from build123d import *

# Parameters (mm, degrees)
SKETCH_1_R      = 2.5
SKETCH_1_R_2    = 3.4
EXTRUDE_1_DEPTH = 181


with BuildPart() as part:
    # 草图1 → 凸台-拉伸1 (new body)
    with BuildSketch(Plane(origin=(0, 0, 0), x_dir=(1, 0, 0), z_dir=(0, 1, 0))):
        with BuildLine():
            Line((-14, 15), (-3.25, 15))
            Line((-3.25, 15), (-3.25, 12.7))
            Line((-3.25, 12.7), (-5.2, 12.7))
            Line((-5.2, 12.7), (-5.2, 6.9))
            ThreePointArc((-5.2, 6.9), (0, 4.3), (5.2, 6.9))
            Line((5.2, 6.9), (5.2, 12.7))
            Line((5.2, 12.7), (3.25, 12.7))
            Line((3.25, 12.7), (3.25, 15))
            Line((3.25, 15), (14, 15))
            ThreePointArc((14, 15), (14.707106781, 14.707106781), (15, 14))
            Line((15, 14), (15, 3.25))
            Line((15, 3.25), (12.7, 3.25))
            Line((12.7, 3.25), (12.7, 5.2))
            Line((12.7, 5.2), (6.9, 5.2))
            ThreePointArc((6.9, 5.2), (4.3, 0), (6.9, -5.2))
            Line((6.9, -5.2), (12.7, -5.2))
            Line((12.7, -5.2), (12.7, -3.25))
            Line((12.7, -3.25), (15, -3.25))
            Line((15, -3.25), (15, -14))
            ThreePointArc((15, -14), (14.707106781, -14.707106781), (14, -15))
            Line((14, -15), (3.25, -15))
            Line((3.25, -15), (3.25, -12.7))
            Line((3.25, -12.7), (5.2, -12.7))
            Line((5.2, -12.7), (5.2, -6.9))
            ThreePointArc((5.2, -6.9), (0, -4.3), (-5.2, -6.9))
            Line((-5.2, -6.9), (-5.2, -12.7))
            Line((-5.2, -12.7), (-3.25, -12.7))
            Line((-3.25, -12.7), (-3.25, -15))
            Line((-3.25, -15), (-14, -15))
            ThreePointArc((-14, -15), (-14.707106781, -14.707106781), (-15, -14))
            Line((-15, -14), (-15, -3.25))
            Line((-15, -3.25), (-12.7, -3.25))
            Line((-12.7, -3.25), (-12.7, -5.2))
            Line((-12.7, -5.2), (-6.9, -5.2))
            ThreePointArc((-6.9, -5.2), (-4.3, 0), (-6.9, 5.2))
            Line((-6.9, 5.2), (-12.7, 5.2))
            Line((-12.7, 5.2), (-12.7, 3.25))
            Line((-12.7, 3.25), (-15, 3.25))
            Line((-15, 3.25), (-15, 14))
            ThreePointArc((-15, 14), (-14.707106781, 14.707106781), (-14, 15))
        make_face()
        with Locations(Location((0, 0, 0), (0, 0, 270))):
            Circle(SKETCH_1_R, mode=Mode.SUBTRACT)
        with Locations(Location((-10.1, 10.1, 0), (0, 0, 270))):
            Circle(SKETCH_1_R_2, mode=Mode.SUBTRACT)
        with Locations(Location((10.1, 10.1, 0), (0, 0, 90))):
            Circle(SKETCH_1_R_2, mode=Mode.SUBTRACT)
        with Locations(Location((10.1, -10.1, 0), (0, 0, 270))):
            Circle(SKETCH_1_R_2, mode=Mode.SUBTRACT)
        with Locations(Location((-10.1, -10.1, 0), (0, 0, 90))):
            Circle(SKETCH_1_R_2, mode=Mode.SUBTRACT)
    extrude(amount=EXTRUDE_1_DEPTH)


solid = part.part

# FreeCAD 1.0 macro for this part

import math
import FreeCAD as App
import Part
import Sketcher

V = App.Vector

doc = App.newDocument("Part")
body = doc.addObject("PartDesign::Body", "Body")

# Sketch on XZ plane
sketch1 = body.newObject("Sketcher::SketchObject", "Sketch")
sketch1.AttachmentSupport = (doc.getObject("XZ_Plane"), [""])
sketch1.MapMode = "FlatFace"
sketch1.addGeometry([
    Part.LineSegment(V(-3.2, -15, 0), V(-14, -15, 0)),  # 0
    Part.ArcOfCircle(Part.Circle(V(-14, -14, 0), V(0, 0, 1), 1), math.radians(-180), math.radians(-90)),  # 1
    Part.LineSegment(V(-15, -14, 0), V(-15, -3.2, 0)),  # 2
    Part.LineSegment(V(-15, -3.2, 0), V(-12.7, -3.2, 0)),  # 3
    Part.LineSegment(V(-12.7, -3.2, 0), V(-12.7, -5.2, 0)),  # 4
    Part.LineSegment(V(-12.7, -5.2, 0), V(-6.9, -5.2, 0)),  # 5
    Part.ArcOfCircle(Part.Circle(V(-10.8, 0, 0), V(0, 0, 1), 6.5), math.radians(-53), math.radians(53)),  # 6
    Part.LineSegment(V(-6.9, 5.2, 0), V(-12.7, 5.2, 0)),  # 7
    Part.LineSegment(V(-12.7, 5.2, 0), V(-12.7, 3.2, 0)),  # 8
    Part.LineSegment(V(-12.7, 3.2, 0), V(-15, 3.2, 0)),  # 9
    Part.LineSegment(V(-15, 3.2, 0), V(-15, 14, 0)),  # 10
    Part.ArcOfCircle(Part.Circle(V(-14, 14, 0), V(0, 0, 1), 1), math.radians(90), math.radians(180)),  # 11
    Part.LineSegment(V(-14, 15, 0), V(-3.2, 15, 0)),  # 12
    Part.LineSegment(V(-3.2, 15, 0), V(-3.2, 12.7, 0)),  # 13
    Part.LineSegment(V(-3.2, 12.7, 0), V(-5.2, 12.7, 0)),  # 14
    Part.LineSegment(V(-5.2, 12.7, 0), V(-5.2, 6.9, 0)),  # 15
    Part.ArcOfCircle(Part.Circle(V(0, 10.8, 0), V(0, 0, 1), 6.5), math.radians(-143), math.radians(-37)),  # 16
    Part.LineSegment(V(5.2, 6.9, 0), V(5.2, 12.7, 0)),  # 17
    Part.LineSegment(V(5.2, 12.7, 0), V(3.2, 12.7, 0)),  # 18
    Part.LineSegment(V(3.2, 12.7, 0), V(3.2, 15, 0)),  # 19
    Part.LineSegment(V(3.2, 15, 0), V(14, 15, 0)),  # 20
    Part.ArcOfCircle(Part.Circle(V(14, 14, 0), V(0, 0, 1), 1), math.radians(0), math.radians(90)),  # 21
    Part.LineSegment(V(15, 14, 0), V(15, 3.2, 0)),  # 22
    Part.LineSegment(V(15, 3.2, 0), V(12.7, 3.2, 0)),  # 23
    Part.LineSegment(V(12.7, 3.2, 0), V(12.7, 5.2, 0)),  # 24
    Part.LineSegment(V(12.7, 5.2, 0), V(6.9, 5.2, 0)),  # 25
    Part.ArcOfCircle(Part.Circle(V(10.8, 0, 0), V(0, 0, 1), 6.5), math.radians(127), math.radians(233)),  # 26
    Part.LineSegment(V(6.9, -5.2, 0), V(12.7, -5.2, 0)),  # 27
    Part.LineSegment(V(12.7, -5.2, 0), V(12.7, -3.2, 0)),  # 28
    Part.LineSegment(V(12.7, -3.2, 0), V(15, -3.2, 0)),  # 29
    Part.LineSegment(V(15, -3.2, 0), V(15, -14, 0)),  # 30
    Part.ArcOfCircle(Part.Circle(V(14, -14, 0), V(0, 0, 1), 1), math.radians(-90), math.radians(0)),  # 31
    Part.LineSegment(V(14, -15, 0), V(3.2, -15, 0)),  # 32
    Part.LineSegment(V(3.2, -15, 0), V(3.2, -12.7, 0)),  # 33
    Part.LineSegment(V(3.2, -12.7, 0), V(5.2, -12.7, 0)),  # 34
    Part.LineSegment(V(5.2, -12.7, 0), V(5.2, -6.9, 0)),  # 35
    Part.ArcOfCircle(Part.Circle(V(0, -10.8, 0), V(0, 0, 1), 6.5), math.radians(37), math.radians(143)),  # 36
    Part.LineSegment(V(-5.2, -6.9, 0), V(-5.2, -12.7, 0)),  # 37
    Part.LineSegment(V(-5.2, -12.7, 0), V(-3.2, -12.7, 0)),  # 38
    Part.LineSegment(V(-3.2, -12.7, 0), V(-3.2, -15, 0)),  # 39
    Part.Circle(V(10.1, 10.1, 0), V(0, 0, 1), 3.4),  # 40
    Part.Circle(V(-10.1, 10.1, 0), V(0, 0, 1), 3.4),  # 41
    Part.Circle(V(10.1, -10.1, 0), V(0, 0, 1), 3.4),  # 42
    Part.Circle(V(0, 0, 0), V(0, 0, 1), 2.5),  # 43
    Part.Circle(V(-10.1, -10.1, 0), V(0, 0, 1), 3.4),  # 44
], False)
sketch1.addConstraint([
    Sketcher.Constraint("Tangent", 0, 2, 1, 2),
    Sketcher.Constraint("Tangent", 1, 1, 2, 1),
    Sketcher.Constraint("Coincident", 2, 2, 3, 1),
    Sketcher.Constraint("Coincident", 3, 2, 4, 1),
    Sketcher.Constraint("Coincident", 4, 2, 5, 1),
    Sketcher.Constraint("Coincident", 5, 2, 6, 1),
    Sketcher.Constraint("Coincident", 6, 2, 7, 1),
    Sketcher.Constraint("Coincident", 7, 2, 8, 1),
    Sketcher.Constraint("Coincident", 8, 2, 9, 1),
    Sketcher.Constraint("Coincident", 9, 2, 10, 1),
    Sketcher.Constraint("Tangent", 10, 2, 11, 2),
    Sketcher.Constraint("Tangent", 11, 1, 12, 1),
    Sketcher.Constraint("Coincident", 12, 2, 13, 1),
    Sketcher.Constraint("Coincident", 13, 2, 14, 1),
    Sketcher.Constraint("Coincident", 14, 2, 15, 1),
    Sketcher.Constraint("Coincident", 15, 2, 16, 1),
    Sketcher.Constraint("Coincident", 16, 2, 17, 1),
    Sketcher.Constraint("Coincident", 17, 2, 18, 1),
    Sketcher.Constraint("Coincident", 18, 2, 19, 1),
    Sketcher.Constraint("Coincident", 19, 2, 20, 1),
    Sketcher.Constraint("Tangent", 20, 2, 21, 2),
    Sketcher.Constraint("Tangent", 21, 1, 22, 1),
    Sketcher.Constraint("Coincident", 22, 2, 23, 1),
    Sketcher.Constraint("Coincident", 23, 2, 24, 1),
    Sketcher.Constraint("Coincident", 24, 2, 25, 1),
    Sketcher.Constraint("Coincident", 25, 2, 26, 1),
    Sketcher.Constraint("Coincident", 26, 2, 27, 1),
    Sketcher.Constraint("Coincident", 27, 2, 28, 1),
    Sketcher.Constraint("Coincident", 28, 2, 29, 1),
    Sketcher.Constraint("Coincident", 29, 2, 30, 1),
    Sketcher.Constraint("Tangent", 30, 2, 31, 2),
    Sketcher.Constraint("Tangent", 31, 1, 32, 1),
    Sketcher.Constraint("Coincident", 32, 2, 33, 1),
    Sketcher.Constraint("Coincident", 33, 2, 34, 1),
    Sketcher.Constraint("Coincident", 34, 2, 35, 1),
    Sketcher.Constraint("Coincident", 35, 2, 36, 1),
    Sketcher.Constraint("Coincident", 36, 2, 37, 1),
    Sketcher.Constraint("Coincident", 37, 2, 38, 1),
    Sketcher.Constraint("Coincident", 38, 2, 39, 1),
    Sketcher.Constraint("Coincident", 39, 2, 0, 1),
    Sketcher.Constraint("Horizontal", 0),
    Sketcher.Constraint("Vertical", 2),
    Sketcher.Constraint("Horizontal", 3),
    Sketcher.Constraint("Vertical", 4),
    Sketcher.Constraint("Horizontal", 5),
    Sketcher.Constraint("Horizontal", 7),
    Sketcher.Constraint("Vertical", 8),
    Sketcher.Constraint("Horizontal", 9),
    Sketcher.Constraint("Vertical", 10),
    Sketcher.Constraint("Horizontal", 12),
    Sketcher.Constraint("Vertical", 13),
    Sketcher.Constraint("Horizontal", 14),
    Sketcher.Constraint("Vertical", 15),
    Sketcher.Constraint("Vertical", 17),
    Sketcher.Constraint("Horizontal", 18),
    Sketcher.Constraint("Vertical", 19),
    Sketcher.Constraint("Horizontal", 20),
    Sketcher.Constraint("Vertical", 22),
    Sketcher.Constraint("Horizontal", 23),
    Sketcher.Constraint("Vertical", 24),
    Sketcher.Constraint("Horizontal", 25),
    Sketcher.Constraint("Horizontal", 27),
    Sketcher.Constraint("Vertical", 28),
    Sketcher.Constraint("Horizontal", 29),
    Sketcher.Constraint("Vertical", 30),
    Sketcher.Constraint("Horizontal", 32),
    Sketcher.Constraint("Vertical", 33),
    Sketcher.Constraint("Horizontal", 34),
    Sketcher.Constraint("Vertical", 35),
    Sketcher.Constraint("Vertical", 37),
    Sketcher.Constraint("Horizontal", 38),
    Sketcher.Constraint("Vertical", 39),
    Sketcher.Constraint("Coincident", 43, 3, -1, 1),
    Sketcher.Constraint("Equal", 1, 11),
    Sketcher.Constraint("Equal", 6, 16),
    Sketcher.Constraint("Equal", 11, 21),
    Sketcher.Constraint("Equal", 16, 26),
    Sketcher.Constraint("Equal", 21, 31),
    Sketcher.Constraint("Equal", 26, 36),
    Sketcher.Constraint("Equal", 40, 41),
    Sketcher.Constraint("Equal", 41, 42),
    Sketcher.Constraint("Equal", 42, 44),
    Sketcher.Constraint("Symmetric", 1, 3, 21, 3, -1, 1),
    Sketcher.Constraint("Symmetric", 6, 3, 26, 3, -1, 1),
    Sketcher.Constraint("Symmetric", 11, 3, 31, 3, -1, 1),
    Sketcher.Constraint("Symmetric", 16, 3, 36, 3, -1, 1),
    Sketcher.Constraint("Symmetric", 41, 3, 42, 3, -1, 1),
    Sketcher.Constraint("Symmetric", 40, 3, 44, 3, -1, 1),
    Sketcher.Constraint("Symmetric", 3, 2, 23, 2, -1, 1),
    Sketcher.Constraint("Symmetric", 7, 2, 27, 2, -1, 1),
    Sketcher.Constraint("Symmetric", 13, 2, 33, 2, -1, 1),
    Sketcher.Constraint("Symmetric", 17, 2, 37, 2, -1, 1),
    Sketcher.Constraint("Symmetric", 11, 3, 21, 3, -2),
    Sketcher.Constraint("Symmetric", 40, 3, 41, 3, -2),
    Sketcher.Constraint("Symmetric", 15, 2, 16, 2, -2),
    Sketcher.Constraint("Symmetric", 13, 2, 18, 2, -2),
    Sketcher.Constraint("Symmetric", 8, 2, 23, 2, -2),
    Sketcher.Constraint("Symmetric", 6, 2, 25, 2, -2),
    Sketcher.Constraint("Horizontal", 5, 2, 26, 2),
    Sketcher.Constraint("Horizontal", 3, 2, 28, 2),
    Sketcher.Constraint("Horizontal", 35, 2, 36, 2),
    Sketcher.Constraint("Vertical", 13, 2, 38, 2),
    Sketcher.Constraint("Equal", 32, 2),
    Sketcher.Constraint("Equal", 38, 4),
    Sketcher.Constraint("Equal", 29, 13),
    Sketcher.Constraint("Equal", 27, 15),
    Sketcher.Constraint("Diameter", 43, 5.0),
    Sketcher.Constraint("Radius", 1, 1.0),
    Sketcher.Constraint("Diameter", 40, 6.8),
    Sketcher.Constraint("Radius", 6, 6.5),
    Sketcher.Constraint("DistanceX", 3, 1, 3, 2, 2.3),
    Sketcher.Constraint("DistanceX", 5, 1, 5, 2, 5.8),
    Sketcher.Constraint("DistanceX", 1, 3, -1, 1, 14.0),
    Sketcher.Constraint("DistanceY", 1, 3, -1, 1, 14.0),
    Sketcher.Constraint("DistanceX", 0, 2, 0, 1, 10.75),
    Sketcher.Constraint("DistanceX", 14, 2, 14, 1, 1.95),
    Sketcher.Constraint("DistanceX", -1, 1, 40, 3, 10.1),
    Sketcher.Constraint("DistanceY", -1, 1, 40, 3, 10.1),
])
pad1 = body.newObject("PartDesign::Pad", "Pad")
pad1.Profile = sketch1
pad1.Length = 181
pad1.Reversed = True

doc.recompute()
